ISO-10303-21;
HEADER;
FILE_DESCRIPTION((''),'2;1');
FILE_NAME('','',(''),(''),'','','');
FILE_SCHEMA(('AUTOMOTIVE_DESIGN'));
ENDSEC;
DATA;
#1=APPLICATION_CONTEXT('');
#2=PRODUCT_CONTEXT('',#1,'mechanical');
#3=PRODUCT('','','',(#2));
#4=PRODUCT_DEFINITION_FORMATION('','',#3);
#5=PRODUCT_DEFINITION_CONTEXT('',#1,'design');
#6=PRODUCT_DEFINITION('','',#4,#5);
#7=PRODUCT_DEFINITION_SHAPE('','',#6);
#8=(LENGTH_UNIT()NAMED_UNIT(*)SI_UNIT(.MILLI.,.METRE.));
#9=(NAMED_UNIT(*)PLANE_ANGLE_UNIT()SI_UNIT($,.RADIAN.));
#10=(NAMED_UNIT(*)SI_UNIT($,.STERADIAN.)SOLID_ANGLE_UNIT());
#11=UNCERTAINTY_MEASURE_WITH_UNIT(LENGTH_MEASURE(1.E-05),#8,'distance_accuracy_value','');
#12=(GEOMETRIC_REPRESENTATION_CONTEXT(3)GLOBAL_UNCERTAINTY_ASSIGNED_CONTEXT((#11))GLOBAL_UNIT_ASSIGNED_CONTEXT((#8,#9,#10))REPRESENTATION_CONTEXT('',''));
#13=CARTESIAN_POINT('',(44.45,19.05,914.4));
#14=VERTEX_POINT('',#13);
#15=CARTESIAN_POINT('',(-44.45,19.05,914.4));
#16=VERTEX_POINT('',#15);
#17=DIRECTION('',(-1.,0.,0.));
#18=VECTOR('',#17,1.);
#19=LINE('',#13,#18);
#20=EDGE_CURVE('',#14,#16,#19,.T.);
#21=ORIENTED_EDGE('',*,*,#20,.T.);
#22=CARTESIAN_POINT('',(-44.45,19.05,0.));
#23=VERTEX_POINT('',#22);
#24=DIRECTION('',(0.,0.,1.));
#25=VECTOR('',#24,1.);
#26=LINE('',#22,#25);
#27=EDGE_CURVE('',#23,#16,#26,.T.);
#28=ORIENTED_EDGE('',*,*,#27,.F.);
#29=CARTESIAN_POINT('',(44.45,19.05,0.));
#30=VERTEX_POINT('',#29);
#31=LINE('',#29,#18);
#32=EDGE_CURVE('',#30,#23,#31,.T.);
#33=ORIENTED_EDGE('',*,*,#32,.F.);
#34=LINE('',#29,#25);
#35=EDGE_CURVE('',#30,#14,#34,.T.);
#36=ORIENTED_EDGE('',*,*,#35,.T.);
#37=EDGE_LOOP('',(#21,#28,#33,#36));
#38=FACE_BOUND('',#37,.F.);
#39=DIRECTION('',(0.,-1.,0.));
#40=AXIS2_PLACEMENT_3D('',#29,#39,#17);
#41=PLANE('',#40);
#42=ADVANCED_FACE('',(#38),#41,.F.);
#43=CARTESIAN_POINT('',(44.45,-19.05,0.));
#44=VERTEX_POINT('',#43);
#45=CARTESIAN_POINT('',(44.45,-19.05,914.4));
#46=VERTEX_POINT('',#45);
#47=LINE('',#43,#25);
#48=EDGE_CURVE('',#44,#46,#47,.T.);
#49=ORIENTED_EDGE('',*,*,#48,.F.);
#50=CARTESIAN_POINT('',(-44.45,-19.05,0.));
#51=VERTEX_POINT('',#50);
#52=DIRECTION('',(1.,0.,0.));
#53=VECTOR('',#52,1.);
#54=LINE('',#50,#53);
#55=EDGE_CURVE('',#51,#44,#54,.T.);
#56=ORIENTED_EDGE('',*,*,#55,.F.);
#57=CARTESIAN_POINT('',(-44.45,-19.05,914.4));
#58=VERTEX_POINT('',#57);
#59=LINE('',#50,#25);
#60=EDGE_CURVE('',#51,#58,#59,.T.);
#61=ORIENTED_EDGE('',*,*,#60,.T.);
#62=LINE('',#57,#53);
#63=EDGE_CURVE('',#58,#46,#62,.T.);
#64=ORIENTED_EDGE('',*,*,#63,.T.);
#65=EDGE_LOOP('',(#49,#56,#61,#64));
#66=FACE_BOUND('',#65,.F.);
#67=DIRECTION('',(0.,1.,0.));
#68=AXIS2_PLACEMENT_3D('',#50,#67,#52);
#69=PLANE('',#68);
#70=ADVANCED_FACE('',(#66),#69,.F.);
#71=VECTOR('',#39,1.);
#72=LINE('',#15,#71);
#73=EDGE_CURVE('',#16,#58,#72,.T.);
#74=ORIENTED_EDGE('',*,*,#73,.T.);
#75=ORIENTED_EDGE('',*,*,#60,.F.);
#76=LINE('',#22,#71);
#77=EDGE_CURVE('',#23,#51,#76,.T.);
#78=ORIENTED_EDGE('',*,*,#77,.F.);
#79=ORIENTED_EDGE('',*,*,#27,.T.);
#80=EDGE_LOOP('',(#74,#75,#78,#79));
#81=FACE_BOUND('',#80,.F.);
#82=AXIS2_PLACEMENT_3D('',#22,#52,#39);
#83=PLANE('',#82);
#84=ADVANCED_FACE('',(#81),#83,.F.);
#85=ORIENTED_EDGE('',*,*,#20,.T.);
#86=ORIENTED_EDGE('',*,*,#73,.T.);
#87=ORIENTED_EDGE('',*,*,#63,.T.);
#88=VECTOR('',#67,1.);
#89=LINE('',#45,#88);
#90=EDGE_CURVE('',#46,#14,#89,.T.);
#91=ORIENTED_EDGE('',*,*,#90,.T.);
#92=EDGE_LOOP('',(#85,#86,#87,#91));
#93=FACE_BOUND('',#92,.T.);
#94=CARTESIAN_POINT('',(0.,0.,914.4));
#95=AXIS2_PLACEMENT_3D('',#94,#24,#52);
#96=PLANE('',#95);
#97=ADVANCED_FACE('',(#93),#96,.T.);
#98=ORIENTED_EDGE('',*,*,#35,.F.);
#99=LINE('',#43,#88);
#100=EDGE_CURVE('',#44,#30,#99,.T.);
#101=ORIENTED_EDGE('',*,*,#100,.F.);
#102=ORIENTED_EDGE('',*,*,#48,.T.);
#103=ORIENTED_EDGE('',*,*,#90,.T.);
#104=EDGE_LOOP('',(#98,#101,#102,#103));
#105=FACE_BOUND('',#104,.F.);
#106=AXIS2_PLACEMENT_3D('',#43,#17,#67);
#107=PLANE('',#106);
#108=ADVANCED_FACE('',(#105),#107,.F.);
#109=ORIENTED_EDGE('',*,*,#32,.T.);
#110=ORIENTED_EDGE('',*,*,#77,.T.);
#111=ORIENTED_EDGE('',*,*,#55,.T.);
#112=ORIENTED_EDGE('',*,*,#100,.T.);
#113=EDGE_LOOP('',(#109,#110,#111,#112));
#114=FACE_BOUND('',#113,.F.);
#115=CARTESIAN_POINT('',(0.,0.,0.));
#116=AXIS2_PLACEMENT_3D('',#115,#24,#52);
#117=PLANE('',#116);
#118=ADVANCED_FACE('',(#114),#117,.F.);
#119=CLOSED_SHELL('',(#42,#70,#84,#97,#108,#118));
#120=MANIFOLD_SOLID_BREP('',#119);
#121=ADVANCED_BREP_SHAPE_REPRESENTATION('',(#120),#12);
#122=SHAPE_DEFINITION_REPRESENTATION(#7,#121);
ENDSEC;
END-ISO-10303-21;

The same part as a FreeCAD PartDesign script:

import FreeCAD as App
import Part
import Sketcher
Q = App.Units.Quantity


def add_polygon(sketch, points):
    """Adds a closed chain of lines whose ends are joined by coincident constraints."""
    first, n = sketch.GeometryCount, len(points)
    for a, b in zip(points, points[1:] + points[:1]):
        sketch.addGeometry(Part.LineSegment(App.Vector(*a, 0), App.Vector(*b, 0)), False)
    for i in range(n):
        sketch.addConstraint(Sketcher.Constraint("Coincident", first + i, 2, first + (i + 1) % n, 1))

doc = App.newDocument("Part")
body = doc.addObject("PartDesign::Body", "Body")

sketch1 = body.newObject("Sketcher::SketchObject", "Sketch")
sketch1.AttachmentSupport = (doc.getObject("XY_Plane"), [""])
sketch1.MapMode = "FlatFace"
add_polygon(sketch1, [(-44, 19), (-44, -19), (44, -19), (44, 19)])
sketch1.addConstraint(Sketcher.Constraint("Vertical", 0))
sketch1.addConstraint(Sketcher.Constraint("Horizontal", 1))
sketch1.addConstraint(Sketcher.Constraint("Vertical", 2))
sketch1.addConstraint(Sketcher.Constraint("Horizontal", 3))
sketch1.addConstraint(Sketcher.Constraint("Symmetric", 0, 2, 2, 2, -1, 1))
sketch1.addConstraint(Sketcher.Constraint("DistanceX", 1, 1, 1, 2, Q("3.5 in")))
sketch1.addConstraint(Sketcher.Constraint("DistanceY", 0, 2, 0, 1, Q("1.5 in")))
pad1 = body.newObject("PartDesign::Pad", "Pad")
pad1.Profile = sketch1
pad1.Length = Q("36 in")

doc.recompute()
